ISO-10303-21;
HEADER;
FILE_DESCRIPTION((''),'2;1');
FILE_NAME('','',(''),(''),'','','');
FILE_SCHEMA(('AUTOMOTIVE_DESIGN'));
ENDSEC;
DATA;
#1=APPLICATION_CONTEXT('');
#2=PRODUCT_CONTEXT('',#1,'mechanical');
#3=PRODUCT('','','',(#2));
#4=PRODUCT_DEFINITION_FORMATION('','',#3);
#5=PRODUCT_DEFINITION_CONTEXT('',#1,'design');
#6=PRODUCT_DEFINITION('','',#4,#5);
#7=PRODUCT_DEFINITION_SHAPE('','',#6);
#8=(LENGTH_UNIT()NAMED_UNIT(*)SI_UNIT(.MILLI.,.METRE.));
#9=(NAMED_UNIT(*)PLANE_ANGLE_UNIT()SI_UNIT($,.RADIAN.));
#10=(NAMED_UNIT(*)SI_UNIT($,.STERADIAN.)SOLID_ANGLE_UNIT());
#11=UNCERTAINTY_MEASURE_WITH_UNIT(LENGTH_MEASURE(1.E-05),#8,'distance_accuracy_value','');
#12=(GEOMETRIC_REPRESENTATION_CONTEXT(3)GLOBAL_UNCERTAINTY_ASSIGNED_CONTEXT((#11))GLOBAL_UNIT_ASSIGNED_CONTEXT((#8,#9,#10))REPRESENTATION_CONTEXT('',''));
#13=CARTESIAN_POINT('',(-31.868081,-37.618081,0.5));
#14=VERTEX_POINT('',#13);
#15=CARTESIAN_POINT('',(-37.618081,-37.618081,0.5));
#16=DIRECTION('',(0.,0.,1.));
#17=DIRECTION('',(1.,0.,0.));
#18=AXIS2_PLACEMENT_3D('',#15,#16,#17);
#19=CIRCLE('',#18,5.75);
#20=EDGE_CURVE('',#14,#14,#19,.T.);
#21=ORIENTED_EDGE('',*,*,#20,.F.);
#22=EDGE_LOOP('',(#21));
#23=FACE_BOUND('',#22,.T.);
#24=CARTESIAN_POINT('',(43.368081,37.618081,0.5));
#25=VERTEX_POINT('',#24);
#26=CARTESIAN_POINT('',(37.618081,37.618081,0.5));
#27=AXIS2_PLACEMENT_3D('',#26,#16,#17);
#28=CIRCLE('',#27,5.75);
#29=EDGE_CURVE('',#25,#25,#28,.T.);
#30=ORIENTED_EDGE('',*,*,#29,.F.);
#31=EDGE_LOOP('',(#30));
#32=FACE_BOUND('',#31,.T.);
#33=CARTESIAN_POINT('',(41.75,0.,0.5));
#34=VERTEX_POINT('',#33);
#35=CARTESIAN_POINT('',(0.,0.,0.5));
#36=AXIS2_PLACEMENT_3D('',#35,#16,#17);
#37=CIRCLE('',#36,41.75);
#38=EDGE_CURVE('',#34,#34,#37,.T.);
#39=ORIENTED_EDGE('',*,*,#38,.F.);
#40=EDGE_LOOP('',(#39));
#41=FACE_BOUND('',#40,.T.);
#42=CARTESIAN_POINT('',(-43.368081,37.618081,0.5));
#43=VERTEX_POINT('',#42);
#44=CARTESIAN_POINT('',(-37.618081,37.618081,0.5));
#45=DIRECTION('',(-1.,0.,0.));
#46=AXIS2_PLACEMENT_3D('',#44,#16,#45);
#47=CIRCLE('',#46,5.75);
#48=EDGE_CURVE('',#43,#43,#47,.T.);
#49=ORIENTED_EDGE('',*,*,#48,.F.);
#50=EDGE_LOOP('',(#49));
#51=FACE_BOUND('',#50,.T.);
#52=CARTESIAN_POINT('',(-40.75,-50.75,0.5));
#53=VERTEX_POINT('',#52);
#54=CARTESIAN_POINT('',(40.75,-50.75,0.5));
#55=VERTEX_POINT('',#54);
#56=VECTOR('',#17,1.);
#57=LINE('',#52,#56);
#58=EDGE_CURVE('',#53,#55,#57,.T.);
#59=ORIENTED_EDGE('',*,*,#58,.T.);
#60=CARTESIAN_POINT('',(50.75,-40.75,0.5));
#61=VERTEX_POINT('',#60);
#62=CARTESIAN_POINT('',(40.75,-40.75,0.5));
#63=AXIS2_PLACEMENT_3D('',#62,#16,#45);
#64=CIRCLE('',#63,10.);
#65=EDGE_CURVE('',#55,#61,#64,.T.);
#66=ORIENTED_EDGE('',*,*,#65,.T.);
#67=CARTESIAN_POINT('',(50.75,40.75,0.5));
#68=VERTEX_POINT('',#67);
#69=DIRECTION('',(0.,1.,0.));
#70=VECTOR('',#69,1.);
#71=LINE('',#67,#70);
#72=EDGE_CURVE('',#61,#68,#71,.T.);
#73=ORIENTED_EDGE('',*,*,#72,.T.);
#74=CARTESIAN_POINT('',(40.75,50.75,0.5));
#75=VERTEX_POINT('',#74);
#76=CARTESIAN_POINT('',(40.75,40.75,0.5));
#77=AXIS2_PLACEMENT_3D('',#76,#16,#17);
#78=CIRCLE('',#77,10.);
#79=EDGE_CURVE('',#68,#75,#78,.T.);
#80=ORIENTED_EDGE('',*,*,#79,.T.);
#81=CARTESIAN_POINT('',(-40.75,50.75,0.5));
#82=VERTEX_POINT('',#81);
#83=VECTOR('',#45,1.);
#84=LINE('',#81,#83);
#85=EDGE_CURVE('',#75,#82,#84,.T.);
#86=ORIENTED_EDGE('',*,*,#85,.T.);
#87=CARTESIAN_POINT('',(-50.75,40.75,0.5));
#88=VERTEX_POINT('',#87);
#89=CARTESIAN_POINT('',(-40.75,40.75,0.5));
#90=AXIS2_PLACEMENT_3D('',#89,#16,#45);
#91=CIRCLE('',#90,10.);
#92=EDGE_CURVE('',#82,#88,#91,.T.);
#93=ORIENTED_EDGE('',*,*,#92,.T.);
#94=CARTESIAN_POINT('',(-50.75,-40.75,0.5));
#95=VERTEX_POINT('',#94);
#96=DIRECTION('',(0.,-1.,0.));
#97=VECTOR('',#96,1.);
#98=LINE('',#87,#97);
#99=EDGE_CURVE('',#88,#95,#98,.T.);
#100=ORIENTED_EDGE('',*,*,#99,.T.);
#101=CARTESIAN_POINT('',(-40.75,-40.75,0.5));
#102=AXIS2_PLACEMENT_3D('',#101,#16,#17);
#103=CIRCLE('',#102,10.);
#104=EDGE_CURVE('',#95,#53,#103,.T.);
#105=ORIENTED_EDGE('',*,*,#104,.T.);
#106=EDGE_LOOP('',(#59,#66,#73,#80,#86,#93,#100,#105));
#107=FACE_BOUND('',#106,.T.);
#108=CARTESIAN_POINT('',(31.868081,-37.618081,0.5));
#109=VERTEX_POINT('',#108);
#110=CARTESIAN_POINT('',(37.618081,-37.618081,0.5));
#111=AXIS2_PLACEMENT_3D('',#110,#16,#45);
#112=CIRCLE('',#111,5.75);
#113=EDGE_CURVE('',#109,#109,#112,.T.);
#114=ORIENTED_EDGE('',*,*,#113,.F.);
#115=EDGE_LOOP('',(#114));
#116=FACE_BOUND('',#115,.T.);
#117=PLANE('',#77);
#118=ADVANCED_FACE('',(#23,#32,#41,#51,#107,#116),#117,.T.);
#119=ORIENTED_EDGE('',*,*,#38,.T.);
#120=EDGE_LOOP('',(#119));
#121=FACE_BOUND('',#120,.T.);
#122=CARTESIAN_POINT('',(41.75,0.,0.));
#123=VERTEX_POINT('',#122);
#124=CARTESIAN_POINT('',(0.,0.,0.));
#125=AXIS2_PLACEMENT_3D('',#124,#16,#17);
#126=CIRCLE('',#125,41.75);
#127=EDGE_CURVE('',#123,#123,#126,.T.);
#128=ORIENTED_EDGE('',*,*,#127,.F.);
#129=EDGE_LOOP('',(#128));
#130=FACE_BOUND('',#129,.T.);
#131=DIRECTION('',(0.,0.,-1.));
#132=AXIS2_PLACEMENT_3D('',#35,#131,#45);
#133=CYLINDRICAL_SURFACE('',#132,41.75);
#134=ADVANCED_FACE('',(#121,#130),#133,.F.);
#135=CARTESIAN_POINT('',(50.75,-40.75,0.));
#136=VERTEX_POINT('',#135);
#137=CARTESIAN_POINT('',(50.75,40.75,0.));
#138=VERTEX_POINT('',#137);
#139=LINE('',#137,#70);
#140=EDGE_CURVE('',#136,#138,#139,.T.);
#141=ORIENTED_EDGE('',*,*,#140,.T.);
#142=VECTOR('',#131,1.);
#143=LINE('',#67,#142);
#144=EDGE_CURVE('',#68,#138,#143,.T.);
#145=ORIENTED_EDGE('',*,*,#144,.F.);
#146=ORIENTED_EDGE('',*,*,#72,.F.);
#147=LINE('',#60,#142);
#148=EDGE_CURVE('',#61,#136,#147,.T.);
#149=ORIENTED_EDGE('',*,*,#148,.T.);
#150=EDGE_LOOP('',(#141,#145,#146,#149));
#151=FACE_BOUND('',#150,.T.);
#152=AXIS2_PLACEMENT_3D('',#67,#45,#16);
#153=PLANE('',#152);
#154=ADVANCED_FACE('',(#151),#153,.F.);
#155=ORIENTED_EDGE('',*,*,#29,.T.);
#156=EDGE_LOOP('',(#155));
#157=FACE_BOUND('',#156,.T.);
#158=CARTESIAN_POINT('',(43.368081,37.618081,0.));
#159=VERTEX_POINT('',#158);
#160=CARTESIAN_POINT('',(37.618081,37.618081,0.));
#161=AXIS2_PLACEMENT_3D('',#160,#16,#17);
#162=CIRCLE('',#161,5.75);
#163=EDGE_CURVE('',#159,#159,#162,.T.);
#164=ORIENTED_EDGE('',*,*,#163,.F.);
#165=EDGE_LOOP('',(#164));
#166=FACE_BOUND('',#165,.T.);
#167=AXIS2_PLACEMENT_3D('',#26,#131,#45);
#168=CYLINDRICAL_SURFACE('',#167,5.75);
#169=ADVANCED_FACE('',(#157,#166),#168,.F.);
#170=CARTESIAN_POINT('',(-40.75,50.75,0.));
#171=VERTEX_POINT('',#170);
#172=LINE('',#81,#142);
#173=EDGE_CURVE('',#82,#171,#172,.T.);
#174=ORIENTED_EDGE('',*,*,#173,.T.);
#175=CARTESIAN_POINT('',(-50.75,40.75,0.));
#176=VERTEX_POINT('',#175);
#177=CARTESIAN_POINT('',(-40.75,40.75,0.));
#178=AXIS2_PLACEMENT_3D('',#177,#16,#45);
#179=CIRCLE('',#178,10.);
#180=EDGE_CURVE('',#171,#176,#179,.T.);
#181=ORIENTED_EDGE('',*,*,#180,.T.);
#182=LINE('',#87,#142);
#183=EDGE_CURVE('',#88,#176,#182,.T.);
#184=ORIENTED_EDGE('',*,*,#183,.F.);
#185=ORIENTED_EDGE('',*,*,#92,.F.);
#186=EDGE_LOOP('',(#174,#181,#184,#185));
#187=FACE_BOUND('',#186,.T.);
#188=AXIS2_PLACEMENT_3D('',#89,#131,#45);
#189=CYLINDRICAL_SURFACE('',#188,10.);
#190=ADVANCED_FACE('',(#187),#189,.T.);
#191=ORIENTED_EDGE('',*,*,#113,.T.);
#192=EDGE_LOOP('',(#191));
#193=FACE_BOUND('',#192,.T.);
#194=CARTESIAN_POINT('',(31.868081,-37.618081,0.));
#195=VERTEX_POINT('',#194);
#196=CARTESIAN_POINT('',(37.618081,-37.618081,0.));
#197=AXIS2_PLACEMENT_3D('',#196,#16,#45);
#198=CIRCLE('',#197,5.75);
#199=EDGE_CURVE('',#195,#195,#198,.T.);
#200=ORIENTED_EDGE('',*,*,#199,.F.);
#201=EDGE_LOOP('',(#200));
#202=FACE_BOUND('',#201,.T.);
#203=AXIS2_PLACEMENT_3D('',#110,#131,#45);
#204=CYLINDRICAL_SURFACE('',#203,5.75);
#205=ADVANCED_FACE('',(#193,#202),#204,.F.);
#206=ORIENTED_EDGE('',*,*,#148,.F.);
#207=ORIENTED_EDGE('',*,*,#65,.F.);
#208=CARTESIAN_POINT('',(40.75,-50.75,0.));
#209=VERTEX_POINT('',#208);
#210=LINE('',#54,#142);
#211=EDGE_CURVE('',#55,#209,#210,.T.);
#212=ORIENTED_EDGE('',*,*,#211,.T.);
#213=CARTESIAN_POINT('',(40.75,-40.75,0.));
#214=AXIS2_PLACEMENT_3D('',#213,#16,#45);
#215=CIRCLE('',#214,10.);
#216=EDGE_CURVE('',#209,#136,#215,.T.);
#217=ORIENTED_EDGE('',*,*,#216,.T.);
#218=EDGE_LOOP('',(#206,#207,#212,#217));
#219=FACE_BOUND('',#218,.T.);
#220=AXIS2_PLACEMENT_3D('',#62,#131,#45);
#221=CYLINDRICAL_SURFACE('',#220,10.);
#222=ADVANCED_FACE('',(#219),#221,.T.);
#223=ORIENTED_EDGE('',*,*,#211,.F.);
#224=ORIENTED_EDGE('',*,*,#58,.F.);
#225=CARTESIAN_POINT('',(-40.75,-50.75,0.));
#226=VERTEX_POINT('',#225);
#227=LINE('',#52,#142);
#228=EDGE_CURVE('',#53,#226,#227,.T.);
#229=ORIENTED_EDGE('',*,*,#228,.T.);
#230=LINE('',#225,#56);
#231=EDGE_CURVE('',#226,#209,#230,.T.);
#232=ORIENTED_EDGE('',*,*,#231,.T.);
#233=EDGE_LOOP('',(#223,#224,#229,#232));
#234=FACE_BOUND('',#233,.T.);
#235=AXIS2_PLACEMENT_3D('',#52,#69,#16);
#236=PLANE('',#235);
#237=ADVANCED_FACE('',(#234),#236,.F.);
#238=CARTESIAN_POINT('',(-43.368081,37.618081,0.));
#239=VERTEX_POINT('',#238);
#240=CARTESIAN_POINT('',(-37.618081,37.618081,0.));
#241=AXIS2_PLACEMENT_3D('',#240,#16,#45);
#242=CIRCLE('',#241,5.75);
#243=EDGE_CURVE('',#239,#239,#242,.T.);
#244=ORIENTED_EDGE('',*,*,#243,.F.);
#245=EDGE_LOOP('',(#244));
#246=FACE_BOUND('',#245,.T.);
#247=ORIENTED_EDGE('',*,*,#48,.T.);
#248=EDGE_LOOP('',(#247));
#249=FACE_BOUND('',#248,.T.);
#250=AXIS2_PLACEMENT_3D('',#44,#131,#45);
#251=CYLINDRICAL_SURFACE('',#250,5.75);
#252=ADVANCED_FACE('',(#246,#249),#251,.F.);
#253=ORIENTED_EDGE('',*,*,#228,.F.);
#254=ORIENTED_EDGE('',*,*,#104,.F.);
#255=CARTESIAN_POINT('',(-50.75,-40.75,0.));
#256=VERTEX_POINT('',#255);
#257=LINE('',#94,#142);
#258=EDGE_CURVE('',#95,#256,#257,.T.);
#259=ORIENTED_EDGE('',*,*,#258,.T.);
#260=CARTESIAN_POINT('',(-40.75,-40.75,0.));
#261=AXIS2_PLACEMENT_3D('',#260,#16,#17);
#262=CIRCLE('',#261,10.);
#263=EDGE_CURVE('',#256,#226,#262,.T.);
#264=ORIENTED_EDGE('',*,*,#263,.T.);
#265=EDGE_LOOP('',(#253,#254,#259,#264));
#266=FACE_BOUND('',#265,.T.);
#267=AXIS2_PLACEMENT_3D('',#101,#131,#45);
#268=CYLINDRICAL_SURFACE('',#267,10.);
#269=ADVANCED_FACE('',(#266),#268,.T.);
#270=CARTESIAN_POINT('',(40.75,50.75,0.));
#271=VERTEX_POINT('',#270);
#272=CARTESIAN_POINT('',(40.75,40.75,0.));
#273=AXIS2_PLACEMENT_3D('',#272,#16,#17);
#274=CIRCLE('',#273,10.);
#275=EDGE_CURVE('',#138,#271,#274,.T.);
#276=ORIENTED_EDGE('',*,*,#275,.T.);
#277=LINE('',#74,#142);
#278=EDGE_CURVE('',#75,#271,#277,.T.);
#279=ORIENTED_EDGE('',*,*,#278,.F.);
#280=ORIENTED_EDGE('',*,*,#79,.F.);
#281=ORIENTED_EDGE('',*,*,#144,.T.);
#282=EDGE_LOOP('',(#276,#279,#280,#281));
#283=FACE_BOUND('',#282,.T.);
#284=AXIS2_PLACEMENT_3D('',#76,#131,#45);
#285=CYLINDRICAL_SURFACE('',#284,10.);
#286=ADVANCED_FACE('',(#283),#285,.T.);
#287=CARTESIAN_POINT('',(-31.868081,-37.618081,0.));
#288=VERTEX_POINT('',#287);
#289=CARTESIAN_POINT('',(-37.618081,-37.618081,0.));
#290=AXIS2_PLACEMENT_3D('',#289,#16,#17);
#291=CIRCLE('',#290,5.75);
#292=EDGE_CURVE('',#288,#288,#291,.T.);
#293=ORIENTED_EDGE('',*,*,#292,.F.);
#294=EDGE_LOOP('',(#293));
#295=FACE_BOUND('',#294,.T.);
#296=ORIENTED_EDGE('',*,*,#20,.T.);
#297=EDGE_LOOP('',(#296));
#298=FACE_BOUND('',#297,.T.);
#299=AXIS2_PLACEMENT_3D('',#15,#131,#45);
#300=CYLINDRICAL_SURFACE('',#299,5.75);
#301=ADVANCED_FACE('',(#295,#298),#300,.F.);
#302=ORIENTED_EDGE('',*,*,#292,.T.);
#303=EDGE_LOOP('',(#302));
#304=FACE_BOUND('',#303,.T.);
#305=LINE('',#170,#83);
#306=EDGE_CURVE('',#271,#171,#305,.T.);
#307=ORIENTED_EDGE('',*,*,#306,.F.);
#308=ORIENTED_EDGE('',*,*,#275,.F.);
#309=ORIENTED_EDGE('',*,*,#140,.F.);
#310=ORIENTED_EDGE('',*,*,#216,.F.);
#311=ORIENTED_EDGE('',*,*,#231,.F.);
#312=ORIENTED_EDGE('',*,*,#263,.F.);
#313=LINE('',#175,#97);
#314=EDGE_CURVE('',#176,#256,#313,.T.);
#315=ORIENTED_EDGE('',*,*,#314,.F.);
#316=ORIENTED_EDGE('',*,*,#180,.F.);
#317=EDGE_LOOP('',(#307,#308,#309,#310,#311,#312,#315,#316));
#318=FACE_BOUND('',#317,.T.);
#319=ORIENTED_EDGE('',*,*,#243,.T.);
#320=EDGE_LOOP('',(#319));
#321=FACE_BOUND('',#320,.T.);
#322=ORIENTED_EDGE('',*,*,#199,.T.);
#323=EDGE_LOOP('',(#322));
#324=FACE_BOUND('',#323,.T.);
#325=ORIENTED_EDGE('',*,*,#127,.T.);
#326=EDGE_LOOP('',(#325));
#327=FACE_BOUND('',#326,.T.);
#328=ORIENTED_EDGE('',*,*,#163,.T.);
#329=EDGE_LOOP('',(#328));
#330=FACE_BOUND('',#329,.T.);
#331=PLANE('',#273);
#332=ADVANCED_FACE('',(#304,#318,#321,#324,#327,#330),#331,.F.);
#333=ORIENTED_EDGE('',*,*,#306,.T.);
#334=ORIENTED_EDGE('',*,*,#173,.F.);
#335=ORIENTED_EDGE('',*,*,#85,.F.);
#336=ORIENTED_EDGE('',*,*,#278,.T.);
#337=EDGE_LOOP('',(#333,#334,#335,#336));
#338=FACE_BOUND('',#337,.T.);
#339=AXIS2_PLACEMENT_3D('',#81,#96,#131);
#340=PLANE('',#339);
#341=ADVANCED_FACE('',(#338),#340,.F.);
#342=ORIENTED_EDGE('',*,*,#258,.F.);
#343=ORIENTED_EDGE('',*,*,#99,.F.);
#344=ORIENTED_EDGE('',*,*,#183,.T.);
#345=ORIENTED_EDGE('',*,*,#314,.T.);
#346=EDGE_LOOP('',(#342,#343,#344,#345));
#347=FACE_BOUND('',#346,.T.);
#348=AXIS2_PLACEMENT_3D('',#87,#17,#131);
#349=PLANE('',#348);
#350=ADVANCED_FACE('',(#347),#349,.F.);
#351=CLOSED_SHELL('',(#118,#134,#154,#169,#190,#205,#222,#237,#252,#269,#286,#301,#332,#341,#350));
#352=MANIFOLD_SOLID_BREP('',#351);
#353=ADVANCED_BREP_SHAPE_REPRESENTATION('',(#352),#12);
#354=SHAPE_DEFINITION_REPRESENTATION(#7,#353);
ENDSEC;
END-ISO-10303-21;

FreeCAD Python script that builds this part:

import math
import FreeCAD as App
import Part
import Sketcher

V = App.Vector
Q = App.Units.Quantity

doc = App.newDocument("Part")
body = doc.addObject("PartDesign::Body", "Body")

# Sketch on XY plane
sketch1 = doc.addObject("Sketcher::SketchObject", "Sketch")
body.addObject(sketch1)
sketch1.AttachmentSupport = (doc.XY_Plane, [""])
sketch1.MapMode = "FlatFace"
sketch1.addGeometry([
    Part.LineSegment(V(41, 51, 0), V(-41, 51, 0)),  # 0
    Part.ArcOfCircle(Part.Circle(V(-41, 41, 0), V(0, 0, 1), 10), math.radians(90), math.radians(180)),  # 1
    Part.LineSegment(V(-51, 41, 0), V(-51, -41, 0)),  # 2
    Part.ArcOfCircle(Part.Circle(V(-41, -41, 0), V(0, 0, 1), 10), math.radians(180), math.radians(270)),  # 3
    Part.LineSegment(V(-41, -51, 0), V(41, -51, 0)),  # 4
    Part.ArcOfCircle(Part.Circle(V(41, -41, 0), V(0, 0, 1), 10), math.radians(-90), math.radians(0)),  # 5
    Part.LineSegment(V(51, -41, 0), V(51, 41, 0)),  # 6
    Part.ArcOfCircle(Part.Circle(V(41, 41, 0), V(0, 0, 1), 10), math.radians(0), math.radians(90)),  # 7
    Part.Circle(V(38, -38, 0), V(0, 0, 1), 6),  # 8
    Part.Circle(V(0, 0, 0), V(0, 0, 1), 42),  # 9
    Part.Circle(V(-38, -38, 0), V(0, 0, 1), 6),  # 10
    Part.Circle(V(38, 38, 0), V(0, 0, 1), 6),  # 11
    Part.Circle(V(-38, 38, 0), V(0, 0, 1), 6),  # 12
], False)
sketch1.addConstraint([
    Sketcher.Constraint("Tangent", 0, 2, 1, 1),
    Sketcher.Constraint("Tangent", 1, 2, 2, 1),
    Sketcher.Constraint("Tangent", 2, 2, 3, 1),
    Sketcher.Constraint("Tangent", 3, 2, 4, 1),
    Sketcher.Constraint("Tangent", 4, 2, 5, 1),
    Sketcher.Constraint("Tangent", 5, 2, 6, 1),
    Sketcher.Constraint("Tangent", 6, 2, 7, 1),
    Sketcher.Constraint("Tangent", 7, 2, 0, 1),
    Sketcher.Constraint("Horizontal", 0),
    Sketcher.Constraint("Vertical", 2),
    Sketcher.Constraint("Horizontal", 4),
    Sketcher.Constraint("Vertical", 6),
    Sketcher.Constraint("Coincident", 9, 3, -1, 1),
    Sketcher.Constraint("Equal", 1, 3),
    Sketcher.Constraint("Equal", 3, 5),
    Sketcher.Constraint("Equal", 5, 7),
    Sketcher.Constraint("Equal", 8, 10),
    Sketcher.Constraint("Equal", 10, 11),
    Sketcher.Constraint("Equal", 11, 12),
    Sketcher.Constraint("Symmetric", 1, 3, 5, 3, -1, 1),
    Sketcher.Constraint("Symmetric", 10, 3, 11, 3, -1, 1),
    Sketcher.Constraint("Symmetric", 8, 3, 12, 3, -1, 1),
    Sketcher.Constraint("Symmetric", 8, 3, 10, 3, -2),
    Sketcher.Constraint("Equal", 4, 2),
    Sketcher.Constraint("Radius", 1, Q("10 mm")),
    Sketcher.Constraint("Diameter", 8, Q("11.5 mm")),
    Sketcher.Constraint("Diameter", 9, Q("83.5 mm")),
    Sketcher.Constraint("DistanceX", 0, 2, 0, 1, Q("81.5 mm")),
    Sketcher.Constraint("DistanceX", -1, 1, 8, 3, Q("37.618081 mm")),
    Sketcher.Constraint("DistanceY", 8, 3, -1, 1, Q("37.618081 mm")),
])
pad1 = doc.addObject("PartDesign::Pad", "Pad")
body.addObject(pad1)
pad1.Profile = sketch1
pad1.Length = 0.5

doc.recompute()
